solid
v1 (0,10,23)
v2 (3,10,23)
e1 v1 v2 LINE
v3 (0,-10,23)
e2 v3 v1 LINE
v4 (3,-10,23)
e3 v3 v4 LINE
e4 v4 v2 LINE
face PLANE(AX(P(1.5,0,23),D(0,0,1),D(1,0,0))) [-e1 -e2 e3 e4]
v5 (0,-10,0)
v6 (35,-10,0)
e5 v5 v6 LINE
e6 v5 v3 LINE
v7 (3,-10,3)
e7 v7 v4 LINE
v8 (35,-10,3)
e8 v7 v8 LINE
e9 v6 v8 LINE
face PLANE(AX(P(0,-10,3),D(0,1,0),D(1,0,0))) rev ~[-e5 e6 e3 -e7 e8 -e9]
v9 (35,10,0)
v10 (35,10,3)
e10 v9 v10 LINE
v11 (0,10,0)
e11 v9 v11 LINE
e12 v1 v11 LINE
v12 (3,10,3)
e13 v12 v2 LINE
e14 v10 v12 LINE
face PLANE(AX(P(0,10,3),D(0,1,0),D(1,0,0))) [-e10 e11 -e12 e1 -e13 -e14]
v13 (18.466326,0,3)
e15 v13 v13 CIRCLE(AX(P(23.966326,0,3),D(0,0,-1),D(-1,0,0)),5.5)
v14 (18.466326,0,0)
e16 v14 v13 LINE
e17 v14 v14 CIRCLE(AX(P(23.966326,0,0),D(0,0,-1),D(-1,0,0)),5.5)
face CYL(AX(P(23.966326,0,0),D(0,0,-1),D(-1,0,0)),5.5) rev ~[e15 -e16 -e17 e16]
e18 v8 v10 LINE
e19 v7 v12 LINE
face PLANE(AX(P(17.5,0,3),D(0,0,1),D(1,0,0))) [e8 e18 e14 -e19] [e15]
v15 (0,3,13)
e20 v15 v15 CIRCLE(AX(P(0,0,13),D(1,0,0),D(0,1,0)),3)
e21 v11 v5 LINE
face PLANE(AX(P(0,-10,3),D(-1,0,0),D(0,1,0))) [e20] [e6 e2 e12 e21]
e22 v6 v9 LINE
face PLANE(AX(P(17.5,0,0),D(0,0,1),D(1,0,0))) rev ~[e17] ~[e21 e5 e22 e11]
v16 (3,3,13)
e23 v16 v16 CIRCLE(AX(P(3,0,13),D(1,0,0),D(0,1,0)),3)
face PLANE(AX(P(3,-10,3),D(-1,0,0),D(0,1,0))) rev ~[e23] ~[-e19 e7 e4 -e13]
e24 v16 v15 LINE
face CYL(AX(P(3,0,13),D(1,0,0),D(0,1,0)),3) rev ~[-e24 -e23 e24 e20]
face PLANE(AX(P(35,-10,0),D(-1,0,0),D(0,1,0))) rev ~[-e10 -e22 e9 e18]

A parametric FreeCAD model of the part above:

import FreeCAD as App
import Part
import Sketcher

V = App.Vector

doc = App.newDocument("Part")
params = doc.addObject("Spreadsheet::Sheet", "Params")
for row, (alias, value) in enumerate([
    ("sketch1_diameter", "11 mm"),
    ("sketch1_width", "35 mm"),
    ("sketch1_height", "20 mm"),
    ("pad1_length", "3 mm"),
    ("sketch2_width", "3 mm"),
    ("sketch2_height", "20 mm"),
    ("pad2_length", "20 mm"),
    ("sketch3_diameter", "6 mm"),
], start=1):
    params.set(f"A{row}", alias)
    params.set(f"B{row}", "=" + value)
    params.setAlias(f"B{row}", alias)

body = doc.addObject("PartDesign::Body", "Body")

# Sketch on XY plane
sketch1 = body.newObject("Sketcher::SketchObject", "Sketch")
sketch1.AttachmentSupport = (doc.getObject("XY_Plane"), [""])
sketch1.MapMode = "FlatFace"
sketch1.addGeometry([
    Part.LineSegment(V(0, 10, 0), V(0, -10, 0)),  # 0
    Part.LineSegment(V(0, -10, 0), V(35, -10, 0)),  # 1
    Part.LineSegment(V(35, -10, 0), V(35, 10, 0)),  # 2
    Part.LineSegment(V(35, 10, 0), V(0, 10, 0)),  # 3
    Part.Circle(V(24, 0, 0), V(0, 0, 1), 6),  # 4
], False)
sketch1.addConstraint([
    Sketcher.Constraint("Coincident", 0, 2, 1, 1),
    Sketcher.Constraint("Coincident", 1, 2, 2, 1),
    Sketcher.Constraint("Coincident", 2, 2, 3, 1),
    Sketcher.Constraint("Coincident", 3, 2, 0, 1),
    Sketcher.Constraint("Vertical", 0),
    Sketcher.Constraint("Horizontal", 1),
    Sketcher.Constraint("Vertical", 2),
    Sketcher.Constraint("Horizontal", 3),
    Sketcher.Constraint("Symmetric", 0, 2, 3, 2, -1, 1),
    Sketcher.Constraint("PointOnObject", 4, 3, -1),
    Sketcher.Constraint("Diameter", 4, 11.0),
    Sketcher.Constraint("DistanceX", 1, 1, 1, 2, 35.0),
    Sketcher.Constraint("DistanceY", 0, 2, 0, 1, 20.0),
    Sketcher.Constraint("DistanceX", -1, 1, 4, 3, 23.966326),
])
sketch1.setExpression("Constraints[10]", "Params.sketch1_diameter")
sketch1.setExpression("Constraints[11]", "Params.sketch1_width")
sketch1.setExpression("Constraints[12]", "Params.sketch1_height")
pad1 = body.newObject("PartDesign::Pad", "Pad")
pad1.Profile = sketch1
pad1.setExpression("Length", "Params.pad1_length")

# Sketch on XY plane
sketch2 = body.newObject("Sketcher::SketchObject", "Sketch001")
sketch2.AttachmentSupport = (doc.getObject("XY_Plane"), [""])
sketch2.MapMode = "FlatFace"
sketch2.AttachmentOffset = App.Placement(V(0, 0, 3), App.Rotation())
sketch2.addGeometry([
    Part.LineSegment(V(0, 10, 0), V(0, -10, 0)),
    Part.LineSegment(V(0, -10, 0), V(3, -10, 0)),
    Part.LineSegment(V(3, -10, 0), V(3, 10, 0)),
    Part.LineSegment(V(3, 10, 0), V(0, 10, 0)),
], False)
sketch2.addConstraint([
    Sketcher.Constraint("Coincident", 0, 2, 1, 1),
    Sketcher.Constraint("Coincident", 1, 2, 2, 1),
    Sketcher.Constraint("Coincident", 2, 2, 3, 1),
    Sketcher.Constraint("Coincident", 3, 2, 0, 1),
    Sketcher.Constraint("Vertical", 0),
    Sketcher.Constraint("Horizontal", 1),
    Sketcher.Constraint("Vertical", 2),
    Sketcher.Constraint("Horizontal", 3),
    Sketcher.Constraint("Symmetric", 0, 2, 3, 2, -1, 1),
    Sketcher.Constraint("DistanceX", 1, 1, 1, 2, 3.0),
    Sketcher.Constraint("DistanceY", 0, 2, 0, 1, 20.0),
])
sketch2.setExpression("Constraints[9]", "Params.sketch2_width")
sketch2.setExpression("Constraints[10]", "Params.sketch2_height")
pad2 = body.newObject("PartDesign::Pad", "Pad001")
pad2.Profile = sketch2
pad2.setExpression("Length", "Params.pad2_length")

# Sketch on YZ plane
sketch3 = body.newObject("Sketcher::SketchObject", "Sketch002")
sketch3.AttachmentSupport = (doc.getObject("YZ_Plane"), [""])
sketch3.MapMode = "FlatFace"
sketch3.AttachmentOffset = App.Placement(V(0, 0, 3), App.Rotation())
sketch3.addGeometry(Part.Circle(V(0, 13, 0), V(0, 0, 1), 3), False)
sketch3.addConstraint([
    Sketcher.Constraint("PointOnObject", 0, 3, -2),
    Sketcher.Constraint("Diameter", 0, 6.0),
    Sketcher.Constraint("DistanceY", -1, 1, 0, 3, 13.0),
])
sketch3.setExpression("Constraints[1]", "Params.sketch3_diameter")
pocket1 = body.newObject("PartDesign::Pocket", "Pocket")
pocket1.Profile = sketch3
pocket1.Type = "ThroughAll"

doc.recompute()
